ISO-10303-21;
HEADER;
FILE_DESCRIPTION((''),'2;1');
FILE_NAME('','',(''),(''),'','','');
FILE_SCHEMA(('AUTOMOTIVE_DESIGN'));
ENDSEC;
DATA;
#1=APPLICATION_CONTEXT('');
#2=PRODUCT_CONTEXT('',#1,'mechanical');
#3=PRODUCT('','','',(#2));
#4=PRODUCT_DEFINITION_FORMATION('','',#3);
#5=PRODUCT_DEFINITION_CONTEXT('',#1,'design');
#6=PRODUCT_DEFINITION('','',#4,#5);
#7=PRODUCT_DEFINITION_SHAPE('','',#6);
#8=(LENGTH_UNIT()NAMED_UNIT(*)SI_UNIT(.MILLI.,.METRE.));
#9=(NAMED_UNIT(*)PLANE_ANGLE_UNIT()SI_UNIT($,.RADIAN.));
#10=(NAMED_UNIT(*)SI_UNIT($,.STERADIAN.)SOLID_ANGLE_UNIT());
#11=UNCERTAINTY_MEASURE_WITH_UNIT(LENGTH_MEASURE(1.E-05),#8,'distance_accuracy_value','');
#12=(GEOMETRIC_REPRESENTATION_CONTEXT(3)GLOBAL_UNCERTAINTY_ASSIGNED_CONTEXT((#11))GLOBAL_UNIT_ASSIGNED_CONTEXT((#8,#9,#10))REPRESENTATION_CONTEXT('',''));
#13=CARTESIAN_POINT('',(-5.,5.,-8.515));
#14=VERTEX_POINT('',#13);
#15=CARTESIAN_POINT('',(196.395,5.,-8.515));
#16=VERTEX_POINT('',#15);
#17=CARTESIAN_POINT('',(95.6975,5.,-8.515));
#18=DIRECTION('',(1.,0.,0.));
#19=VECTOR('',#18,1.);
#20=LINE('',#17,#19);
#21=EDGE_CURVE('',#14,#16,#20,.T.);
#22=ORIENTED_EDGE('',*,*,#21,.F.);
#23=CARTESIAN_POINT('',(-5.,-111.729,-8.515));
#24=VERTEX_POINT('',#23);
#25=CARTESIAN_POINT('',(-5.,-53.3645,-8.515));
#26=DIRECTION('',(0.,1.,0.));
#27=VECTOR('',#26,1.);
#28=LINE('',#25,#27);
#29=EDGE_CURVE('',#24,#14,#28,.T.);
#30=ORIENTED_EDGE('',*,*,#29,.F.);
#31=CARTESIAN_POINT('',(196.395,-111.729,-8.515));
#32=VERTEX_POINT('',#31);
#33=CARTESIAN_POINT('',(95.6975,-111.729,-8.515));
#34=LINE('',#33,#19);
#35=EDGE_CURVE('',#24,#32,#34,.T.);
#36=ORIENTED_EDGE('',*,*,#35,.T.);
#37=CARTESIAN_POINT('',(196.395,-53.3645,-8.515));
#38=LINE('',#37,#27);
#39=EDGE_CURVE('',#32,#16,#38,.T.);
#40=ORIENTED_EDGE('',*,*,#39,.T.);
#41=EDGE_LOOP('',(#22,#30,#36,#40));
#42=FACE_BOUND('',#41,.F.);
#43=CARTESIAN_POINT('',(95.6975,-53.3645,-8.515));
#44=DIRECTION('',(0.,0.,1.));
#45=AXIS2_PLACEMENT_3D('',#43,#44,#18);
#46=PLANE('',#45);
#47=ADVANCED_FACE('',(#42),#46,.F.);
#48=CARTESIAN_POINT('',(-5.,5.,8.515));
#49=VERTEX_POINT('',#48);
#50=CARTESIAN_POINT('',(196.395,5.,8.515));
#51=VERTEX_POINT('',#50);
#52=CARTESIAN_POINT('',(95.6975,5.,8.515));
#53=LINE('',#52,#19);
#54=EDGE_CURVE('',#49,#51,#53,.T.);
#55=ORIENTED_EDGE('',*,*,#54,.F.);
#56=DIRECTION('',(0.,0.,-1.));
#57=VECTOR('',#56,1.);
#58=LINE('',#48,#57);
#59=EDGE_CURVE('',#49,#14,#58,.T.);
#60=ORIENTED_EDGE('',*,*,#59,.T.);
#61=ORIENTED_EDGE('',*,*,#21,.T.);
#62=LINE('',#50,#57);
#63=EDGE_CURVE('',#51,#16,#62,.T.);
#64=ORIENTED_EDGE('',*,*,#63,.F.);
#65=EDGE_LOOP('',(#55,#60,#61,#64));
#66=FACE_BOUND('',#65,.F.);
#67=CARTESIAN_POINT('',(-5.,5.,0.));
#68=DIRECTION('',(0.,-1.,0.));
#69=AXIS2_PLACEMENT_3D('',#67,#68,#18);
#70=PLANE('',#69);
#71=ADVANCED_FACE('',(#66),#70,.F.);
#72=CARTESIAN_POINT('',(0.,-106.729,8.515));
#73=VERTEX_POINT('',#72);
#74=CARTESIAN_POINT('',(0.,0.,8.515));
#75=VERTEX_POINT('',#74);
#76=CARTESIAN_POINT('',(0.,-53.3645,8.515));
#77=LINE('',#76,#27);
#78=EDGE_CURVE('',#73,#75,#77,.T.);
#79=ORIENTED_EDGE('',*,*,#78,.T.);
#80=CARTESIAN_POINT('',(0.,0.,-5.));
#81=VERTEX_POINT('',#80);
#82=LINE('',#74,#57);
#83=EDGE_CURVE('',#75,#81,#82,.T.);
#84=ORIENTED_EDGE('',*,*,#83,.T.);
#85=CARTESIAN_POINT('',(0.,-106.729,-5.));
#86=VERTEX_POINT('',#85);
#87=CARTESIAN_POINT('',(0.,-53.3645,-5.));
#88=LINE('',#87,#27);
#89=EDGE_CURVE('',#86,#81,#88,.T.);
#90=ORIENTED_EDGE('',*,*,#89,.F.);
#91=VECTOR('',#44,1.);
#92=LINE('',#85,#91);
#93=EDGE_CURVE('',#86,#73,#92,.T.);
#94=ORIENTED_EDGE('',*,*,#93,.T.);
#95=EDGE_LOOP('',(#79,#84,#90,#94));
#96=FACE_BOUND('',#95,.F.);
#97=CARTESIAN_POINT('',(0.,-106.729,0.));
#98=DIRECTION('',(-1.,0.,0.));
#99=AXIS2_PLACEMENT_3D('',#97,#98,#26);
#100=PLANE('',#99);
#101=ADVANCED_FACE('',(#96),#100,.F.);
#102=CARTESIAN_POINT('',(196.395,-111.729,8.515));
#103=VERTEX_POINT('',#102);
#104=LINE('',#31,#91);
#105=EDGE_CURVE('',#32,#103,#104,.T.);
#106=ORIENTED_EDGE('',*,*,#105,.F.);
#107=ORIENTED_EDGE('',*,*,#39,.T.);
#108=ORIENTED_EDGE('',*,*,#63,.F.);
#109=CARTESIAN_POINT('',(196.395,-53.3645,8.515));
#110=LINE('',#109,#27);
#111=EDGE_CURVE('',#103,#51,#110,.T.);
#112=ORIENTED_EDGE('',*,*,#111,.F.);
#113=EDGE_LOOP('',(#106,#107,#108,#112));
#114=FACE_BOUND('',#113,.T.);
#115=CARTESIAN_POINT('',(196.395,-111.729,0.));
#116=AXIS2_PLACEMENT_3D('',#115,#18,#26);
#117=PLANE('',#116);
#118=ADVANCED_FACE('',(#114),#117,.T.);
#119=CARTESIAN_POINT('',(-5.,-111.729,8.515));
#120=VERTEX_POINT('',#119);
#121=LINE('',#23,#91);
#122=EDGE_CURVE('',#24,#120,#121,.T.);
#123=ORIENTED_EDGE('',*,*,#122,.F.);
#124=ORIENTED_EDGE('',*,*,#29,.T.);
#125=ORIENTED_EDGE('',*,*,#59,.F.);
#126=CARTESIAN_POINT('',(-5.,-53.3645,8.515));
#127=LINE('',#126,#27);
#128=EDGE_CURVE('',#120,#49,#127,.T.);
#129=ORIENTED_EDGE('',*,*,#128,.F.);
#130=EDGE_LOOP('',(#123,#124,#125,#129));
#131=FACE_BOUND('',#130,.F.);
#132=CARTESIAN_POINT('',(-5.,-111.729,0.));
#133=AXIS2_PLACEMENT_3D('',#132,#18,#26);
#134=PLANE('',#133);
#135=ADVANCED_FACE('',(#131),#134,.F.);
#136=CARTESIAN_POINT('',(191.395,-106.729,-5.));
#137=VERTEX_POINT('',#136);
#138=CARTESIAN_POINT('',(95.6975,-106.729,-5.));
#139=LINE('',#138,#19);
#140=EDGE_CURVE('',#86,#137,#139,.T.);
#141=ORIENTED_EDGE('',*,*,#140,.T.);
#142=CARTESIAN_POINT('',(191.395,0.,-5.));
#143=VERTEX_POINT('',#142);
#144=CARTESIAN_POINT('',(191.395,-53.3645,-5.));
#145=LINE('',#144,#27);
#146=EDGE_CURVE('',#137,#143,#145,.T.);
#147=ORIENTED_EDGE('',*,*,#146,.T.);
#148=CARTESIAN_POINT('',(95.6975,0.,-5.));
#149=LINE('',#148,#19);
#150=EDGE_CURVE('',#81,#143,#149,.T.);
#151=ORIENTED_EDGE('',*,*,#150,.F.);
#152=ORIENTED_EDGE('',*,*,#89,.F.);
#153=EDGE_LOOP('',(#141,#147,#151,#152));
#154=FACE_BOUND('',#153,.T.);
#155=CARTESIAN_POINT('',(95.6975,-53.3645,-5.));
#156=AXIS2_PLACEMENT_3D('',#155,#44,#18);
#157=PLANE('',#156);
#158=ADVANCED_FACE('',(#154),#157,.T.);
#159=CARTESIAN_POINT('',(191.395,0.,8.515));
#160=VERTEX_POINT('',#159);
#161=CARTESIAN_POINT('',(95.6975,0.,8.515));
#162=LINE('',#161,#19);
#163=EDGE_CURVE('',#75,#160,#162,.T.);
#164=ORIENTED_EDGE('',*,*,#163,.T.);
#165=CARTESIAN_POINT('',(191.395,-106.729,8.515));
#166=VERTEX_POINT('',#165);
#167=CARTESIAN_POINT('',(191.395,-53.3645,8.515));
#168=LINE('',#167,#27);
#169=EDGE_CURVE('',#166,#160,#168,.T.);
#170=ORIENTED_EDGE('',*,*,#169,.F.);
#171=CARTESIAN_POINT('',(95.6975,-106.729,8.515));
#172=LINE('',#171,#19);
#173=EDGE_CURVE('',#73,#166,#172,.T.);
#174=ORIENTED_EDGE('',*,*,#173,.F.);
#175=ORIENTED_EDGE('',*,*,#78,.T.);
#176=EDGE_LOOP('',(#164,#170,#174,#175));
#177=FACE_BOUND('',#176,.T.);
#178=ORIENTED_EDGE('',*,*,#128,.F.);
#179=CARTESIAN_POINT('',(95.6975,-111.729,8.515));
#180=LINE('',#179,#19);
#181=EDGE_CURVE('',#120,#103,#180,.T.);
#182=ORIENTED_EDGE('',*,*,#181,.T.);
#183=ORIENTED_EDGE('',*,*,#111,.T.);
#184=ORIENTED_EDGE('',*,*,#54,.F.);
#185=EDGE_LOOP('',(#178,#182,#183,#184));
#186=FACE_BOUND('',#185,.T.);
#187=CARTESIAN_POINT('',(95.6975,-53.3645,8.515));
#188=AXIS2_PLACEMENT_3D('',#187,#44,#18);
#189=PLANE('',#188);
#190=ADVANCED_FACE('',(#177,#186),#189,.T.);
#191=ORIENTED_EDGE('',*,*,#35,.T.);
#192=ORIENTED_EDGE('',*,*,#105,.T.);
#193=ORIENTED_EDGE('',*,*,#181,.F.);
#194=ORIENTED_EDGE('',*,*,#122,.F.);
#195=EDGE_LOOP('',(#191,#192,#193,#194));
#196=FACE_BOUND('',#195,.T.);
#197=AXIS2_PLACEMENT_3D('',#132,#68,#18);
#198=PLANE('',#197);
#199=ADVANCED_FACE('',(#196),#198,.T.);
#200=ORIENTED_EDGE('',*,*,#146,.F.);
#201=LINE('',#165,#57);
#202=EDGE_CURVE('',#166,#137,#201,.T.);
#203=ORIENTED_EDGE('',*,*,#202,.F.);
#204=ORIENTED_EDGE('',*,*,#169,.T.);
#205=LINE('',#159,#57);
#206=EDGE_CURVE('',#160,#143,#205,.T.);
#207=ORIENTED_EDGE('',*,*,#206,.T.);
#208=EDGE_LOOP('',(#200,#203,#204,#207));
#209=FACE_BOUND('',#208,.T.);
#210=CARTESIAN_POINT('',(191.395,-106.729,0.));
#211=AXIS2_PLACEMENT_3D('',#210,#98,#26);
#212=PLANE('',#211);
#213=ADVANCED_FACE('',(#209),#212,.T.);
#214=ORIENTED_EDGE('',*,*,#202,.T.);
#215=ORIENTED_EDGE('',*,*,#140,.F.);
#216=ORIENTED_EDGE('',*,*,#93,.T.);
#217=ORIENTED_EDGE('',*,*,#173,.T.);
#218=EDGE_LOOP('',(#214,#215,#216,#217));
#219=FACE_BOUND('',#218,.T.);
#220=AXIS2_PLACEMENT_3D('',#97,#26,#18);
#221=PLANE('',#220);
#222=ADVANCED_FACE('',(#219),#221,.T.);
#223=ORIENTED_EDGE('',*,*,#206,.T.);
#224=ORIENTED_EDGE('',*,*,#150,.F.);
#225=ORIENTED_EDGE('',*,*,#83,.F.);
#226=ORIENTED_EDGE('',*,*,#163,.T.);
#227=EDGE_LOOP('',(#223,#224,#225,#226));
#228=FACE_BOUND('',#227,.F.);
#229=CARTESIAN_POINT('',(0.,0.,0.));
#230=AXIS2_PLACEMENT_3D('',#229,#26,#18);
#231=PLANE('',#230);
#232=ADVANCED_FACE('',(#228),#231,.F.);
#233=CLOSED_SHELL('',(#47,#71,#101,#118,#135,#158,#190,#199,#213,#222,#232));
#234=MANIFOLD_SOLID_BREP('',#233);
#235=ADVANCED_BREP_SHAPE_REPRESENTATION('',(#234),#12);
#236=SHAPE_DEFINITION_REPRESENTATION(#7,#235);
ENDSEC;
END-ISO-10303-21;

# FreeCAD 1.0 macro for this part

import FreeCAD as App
import Part
import Sketcher
Q = App.Units.Quantity


def add_polygon(sketch, points):
    """Adds a closed chain of lines whose ends are joined by coincident constraints."""
    first, n = sketch.GeometryCount, len(points)
    for a, b in zip(points, points[1:] + points[:1]):
        sketch.addGeometry(Part.LineSegment(App.Vector(*a, 0), App.Vector(*b, 0)), False)
    for i in range(n):
        sketch.addConstraint(Sketcher.Constraint("Coincident", first + i, 2, first + (i + 1) % n, 1))

doc = App.newDocument("Part")
body = doc.addObject("PartDesign::Body", "Body")

# Sketch on XY plane
sketch1 = body.newObject("Sketcher::SketchObject", "Sketch")
sketch1.AttachmentSupport = (doc.getObject("XY_Plane"), [""])
sketch1.MapMode = "FlatFace"
add_polygon(sketch1, [(-5, 5), (-5, -112), (196, -112), (196, 5)])  # lines 0-3
sketch1.addConstraint([
    Sketcher.Constraint("Vertical", 0),
    Sketcher.Constraint("Horizontal", 1),
    Sketcher.Constraint("Vertical", 2),
    Sketcher.Constraint("Horizontal", 3),
    Sketcher.Constraint("DistanceX", 0, 2, -1, 1, Q("5 mm")),
    Sketcher.Constraint("DistanceY", -1, 1, 2, 2, Q("5 mm")),
    Sketcher.Constraint("DistanceX", 1, 1, 1, 2, Q("201.395 mm")),
    Sketcher.Constraint("DistanceY", 0, 2, 0, 1, Q("116.729 mm")),
])
pad1 = body.newObject("PartDesign::Pad", "Pad")
pad1.Profile = sketch1
pad1.Length = 17.03
pad1.Midplane = True

# Sketch on XY plane
sketch2 = body.newObject("Sketcher::SketchObject", "Sketch001")
sketch2.AttachmentSupport = (doc.getObject("XY_Plane"), [""])
sketch2.MapMode = "FlatFace"
add_polygon(sketch2, [(0, 0), (0, -107), (191, -107), (191, 0)])  # lines 0-3
sketch2.addConstraint([
    Sketcher.Constraint("Vertical", 0),
    Sketcher.Constraint("Horizontal", 1),
    Sketcher.Constraint("Vertical", 2),
    Sketcher.Constraint("Horizontal", 3),
    Sketcher.Constraint("Coincident", 3, 2, -1, 1),
    Sketcher.Constraint("DistanceX", 1, 1, 1, 2, Q("191.395 mm")),
    Sketcher.Constraint("DistanceY", 0, 2, 0, 1, Q("106.729 mm")),
])
pocket1 = body.newObject("PartDesign::Pocket", "Pocket")
pocket1.Profile = sketch2
pocket1.Type = "TwoLengths"
pocket1.Length = 8.515
pocket1.Length2 = 5
pocket1.Reversed = True

doc.recompute()
